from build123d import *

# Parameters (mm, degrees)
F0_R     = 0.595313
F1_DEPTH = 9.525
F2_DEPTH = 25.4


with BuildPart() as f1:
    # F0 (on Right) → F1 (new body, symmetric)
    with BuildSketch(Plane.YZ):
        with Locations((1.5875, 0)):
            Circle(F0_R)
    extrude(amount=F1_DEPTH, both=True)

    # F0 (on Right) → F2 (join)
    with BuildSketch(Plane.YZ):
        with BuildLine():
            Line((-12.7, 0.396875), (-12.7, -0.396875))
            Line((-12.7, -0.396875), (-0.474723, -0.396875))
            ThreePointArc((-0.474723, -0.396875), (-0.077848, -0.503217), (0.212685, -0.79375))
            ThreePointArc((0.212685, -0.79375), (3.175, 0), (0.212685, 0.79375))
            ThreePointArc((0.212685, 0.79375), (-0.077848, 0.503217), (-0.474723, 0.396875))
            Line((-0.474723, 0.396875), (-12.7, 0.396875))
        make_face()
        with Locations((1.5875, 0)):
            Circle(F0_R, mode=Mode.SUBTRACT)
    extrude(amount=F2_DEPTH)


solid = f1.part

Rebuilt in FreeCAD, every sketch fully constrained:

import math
import FreeCAD as App
import Part
import Sketcher

V = App.Vector
Q = App.Units.Quantity

doc = App.newDocument("Part")
body = doc.addObject("PartDesign::Body", "Body")

# Sketch on YZ plane
sketch1 = body.newObject("Sketcher::SketchObject", "Sketch")
sketch1.AttachmentSupport = (doc.getObject("YZ_Plane"), [""])
sketch1.MapMode = "FlatFace"
sketch1.addGeometry(Part.Circle(V(1.6, 0, 0), V(0, 0, 1), 0.6), False)
sketch1.addConstraint([
    Sketcher.Constraint("PointOnObject", 0, 3, -1),
    Sketcher.Constraint("Diameter", 0, Q("0.046875 in")),
    Sketcher.Constraint("DistanceX", -1, 1, 0, 3, Q("0.0625 in")),
])
pad1 = body.newObject("PartDesign::Pad", "Pad")
pad1.Profile = sketch1
pad1.Length = Q("0.75 in")
pad1.Midplane = True

# Sketch on YZ plane
sketch2 = body.newObject("Sketcher::SketchObject", "Sketch001")
sketch2.AttachmentSupport = (doc.getObject("YZ_Plane"), [""])
sketch2.MapMode = "FlatFace"
sketch2.addGeometry([
    Part.LineSegment(V(-12.7, 0.4, 0), V(-12.7, -0.4, 0)),  # 0
    Part.LineSegment(V(-12.7, -0.4, 0), V(-0.5, -0.4, 0)),  # 1
    Part.ArcOfCircle(Part.Circle(V(-0.5, -1.2, 0), V(0, 0, 1), 0.8), math.radians(30), math.radians(90)),  # 2
    Part.ArcOfCircle(Part.Circle(V(1.6, 0, 0), V(0, 0, 1), 1.6), math.radians(-150), math.radians(150)),  # 3
    Part.ArcOfCircle(Part.Circle(V(-0.5, 1.2, 0), V(0, 0, 1), 0.8), math.radians(-90), math.radians(-30)),  # 4
    Part.LineSegment(V(-0.5, 0.4, 0), V(-12.7, 0.4, 0)),  # 5
    Part.Circle(V(1.6, 0, 0), V(0, 0, 1), 0.6),  # 6
], False)
sketch2.addConstraint([
    Sketcher.Constraint("Coincident", 0, 2, 1, 1),
    Sketcher.Constraint("Tangent", 1, 2, 2, 2),
    Sketcher.Constraint("Tangent", 2, 1, 3, 1),
    Sketcher.Constraint("Tangent", 3, 2, 4, 2),
    Sketcher.Constraint("Tangent", 4, 1, 5, 1),
    Sketcher.Constraint("Coincident", 5, 2, 0, 1),
    Sketcher.Constraint("Vertical", 0),
    Sketcher.Constraint("Horizontal", 1),
    Sketcher.Constraint("Horizontal", 5),
    Sketcher.Constraint("Coincident", 6, 3, 3, 3),
    Sketcher.Constraint("Equal", 2, 4),
    Sketcher.Constraint("Symmetric", 2, 3, 4, 3, -1),
    Sketcher.Constraint("Diameter", 6, Q("0.046875 in")),
    Sketcher.Constraint("Radius", 2, Q("0.03125 in")),
    Sketcher.Constraint("Radius", 3, Q("0.0625 in")),
    Sketcher.Constraint("DistanceX", 0, 2, -1, 1, Q("0.5 in")),
    Sketcher.Constraint("DistanceY", 0, 2, 0, 1, Q("0.03125 in")),
    Sketcher.Constraint("DistanceX", -1, 1, 3, 3, Q("0.0625 in")),
])
pad2 = body.newObject("PartDesign::Pad", "Pad001")
pad2.Profile = sketch2
pad2.Length = Q("1 in")

doc.recompute()
